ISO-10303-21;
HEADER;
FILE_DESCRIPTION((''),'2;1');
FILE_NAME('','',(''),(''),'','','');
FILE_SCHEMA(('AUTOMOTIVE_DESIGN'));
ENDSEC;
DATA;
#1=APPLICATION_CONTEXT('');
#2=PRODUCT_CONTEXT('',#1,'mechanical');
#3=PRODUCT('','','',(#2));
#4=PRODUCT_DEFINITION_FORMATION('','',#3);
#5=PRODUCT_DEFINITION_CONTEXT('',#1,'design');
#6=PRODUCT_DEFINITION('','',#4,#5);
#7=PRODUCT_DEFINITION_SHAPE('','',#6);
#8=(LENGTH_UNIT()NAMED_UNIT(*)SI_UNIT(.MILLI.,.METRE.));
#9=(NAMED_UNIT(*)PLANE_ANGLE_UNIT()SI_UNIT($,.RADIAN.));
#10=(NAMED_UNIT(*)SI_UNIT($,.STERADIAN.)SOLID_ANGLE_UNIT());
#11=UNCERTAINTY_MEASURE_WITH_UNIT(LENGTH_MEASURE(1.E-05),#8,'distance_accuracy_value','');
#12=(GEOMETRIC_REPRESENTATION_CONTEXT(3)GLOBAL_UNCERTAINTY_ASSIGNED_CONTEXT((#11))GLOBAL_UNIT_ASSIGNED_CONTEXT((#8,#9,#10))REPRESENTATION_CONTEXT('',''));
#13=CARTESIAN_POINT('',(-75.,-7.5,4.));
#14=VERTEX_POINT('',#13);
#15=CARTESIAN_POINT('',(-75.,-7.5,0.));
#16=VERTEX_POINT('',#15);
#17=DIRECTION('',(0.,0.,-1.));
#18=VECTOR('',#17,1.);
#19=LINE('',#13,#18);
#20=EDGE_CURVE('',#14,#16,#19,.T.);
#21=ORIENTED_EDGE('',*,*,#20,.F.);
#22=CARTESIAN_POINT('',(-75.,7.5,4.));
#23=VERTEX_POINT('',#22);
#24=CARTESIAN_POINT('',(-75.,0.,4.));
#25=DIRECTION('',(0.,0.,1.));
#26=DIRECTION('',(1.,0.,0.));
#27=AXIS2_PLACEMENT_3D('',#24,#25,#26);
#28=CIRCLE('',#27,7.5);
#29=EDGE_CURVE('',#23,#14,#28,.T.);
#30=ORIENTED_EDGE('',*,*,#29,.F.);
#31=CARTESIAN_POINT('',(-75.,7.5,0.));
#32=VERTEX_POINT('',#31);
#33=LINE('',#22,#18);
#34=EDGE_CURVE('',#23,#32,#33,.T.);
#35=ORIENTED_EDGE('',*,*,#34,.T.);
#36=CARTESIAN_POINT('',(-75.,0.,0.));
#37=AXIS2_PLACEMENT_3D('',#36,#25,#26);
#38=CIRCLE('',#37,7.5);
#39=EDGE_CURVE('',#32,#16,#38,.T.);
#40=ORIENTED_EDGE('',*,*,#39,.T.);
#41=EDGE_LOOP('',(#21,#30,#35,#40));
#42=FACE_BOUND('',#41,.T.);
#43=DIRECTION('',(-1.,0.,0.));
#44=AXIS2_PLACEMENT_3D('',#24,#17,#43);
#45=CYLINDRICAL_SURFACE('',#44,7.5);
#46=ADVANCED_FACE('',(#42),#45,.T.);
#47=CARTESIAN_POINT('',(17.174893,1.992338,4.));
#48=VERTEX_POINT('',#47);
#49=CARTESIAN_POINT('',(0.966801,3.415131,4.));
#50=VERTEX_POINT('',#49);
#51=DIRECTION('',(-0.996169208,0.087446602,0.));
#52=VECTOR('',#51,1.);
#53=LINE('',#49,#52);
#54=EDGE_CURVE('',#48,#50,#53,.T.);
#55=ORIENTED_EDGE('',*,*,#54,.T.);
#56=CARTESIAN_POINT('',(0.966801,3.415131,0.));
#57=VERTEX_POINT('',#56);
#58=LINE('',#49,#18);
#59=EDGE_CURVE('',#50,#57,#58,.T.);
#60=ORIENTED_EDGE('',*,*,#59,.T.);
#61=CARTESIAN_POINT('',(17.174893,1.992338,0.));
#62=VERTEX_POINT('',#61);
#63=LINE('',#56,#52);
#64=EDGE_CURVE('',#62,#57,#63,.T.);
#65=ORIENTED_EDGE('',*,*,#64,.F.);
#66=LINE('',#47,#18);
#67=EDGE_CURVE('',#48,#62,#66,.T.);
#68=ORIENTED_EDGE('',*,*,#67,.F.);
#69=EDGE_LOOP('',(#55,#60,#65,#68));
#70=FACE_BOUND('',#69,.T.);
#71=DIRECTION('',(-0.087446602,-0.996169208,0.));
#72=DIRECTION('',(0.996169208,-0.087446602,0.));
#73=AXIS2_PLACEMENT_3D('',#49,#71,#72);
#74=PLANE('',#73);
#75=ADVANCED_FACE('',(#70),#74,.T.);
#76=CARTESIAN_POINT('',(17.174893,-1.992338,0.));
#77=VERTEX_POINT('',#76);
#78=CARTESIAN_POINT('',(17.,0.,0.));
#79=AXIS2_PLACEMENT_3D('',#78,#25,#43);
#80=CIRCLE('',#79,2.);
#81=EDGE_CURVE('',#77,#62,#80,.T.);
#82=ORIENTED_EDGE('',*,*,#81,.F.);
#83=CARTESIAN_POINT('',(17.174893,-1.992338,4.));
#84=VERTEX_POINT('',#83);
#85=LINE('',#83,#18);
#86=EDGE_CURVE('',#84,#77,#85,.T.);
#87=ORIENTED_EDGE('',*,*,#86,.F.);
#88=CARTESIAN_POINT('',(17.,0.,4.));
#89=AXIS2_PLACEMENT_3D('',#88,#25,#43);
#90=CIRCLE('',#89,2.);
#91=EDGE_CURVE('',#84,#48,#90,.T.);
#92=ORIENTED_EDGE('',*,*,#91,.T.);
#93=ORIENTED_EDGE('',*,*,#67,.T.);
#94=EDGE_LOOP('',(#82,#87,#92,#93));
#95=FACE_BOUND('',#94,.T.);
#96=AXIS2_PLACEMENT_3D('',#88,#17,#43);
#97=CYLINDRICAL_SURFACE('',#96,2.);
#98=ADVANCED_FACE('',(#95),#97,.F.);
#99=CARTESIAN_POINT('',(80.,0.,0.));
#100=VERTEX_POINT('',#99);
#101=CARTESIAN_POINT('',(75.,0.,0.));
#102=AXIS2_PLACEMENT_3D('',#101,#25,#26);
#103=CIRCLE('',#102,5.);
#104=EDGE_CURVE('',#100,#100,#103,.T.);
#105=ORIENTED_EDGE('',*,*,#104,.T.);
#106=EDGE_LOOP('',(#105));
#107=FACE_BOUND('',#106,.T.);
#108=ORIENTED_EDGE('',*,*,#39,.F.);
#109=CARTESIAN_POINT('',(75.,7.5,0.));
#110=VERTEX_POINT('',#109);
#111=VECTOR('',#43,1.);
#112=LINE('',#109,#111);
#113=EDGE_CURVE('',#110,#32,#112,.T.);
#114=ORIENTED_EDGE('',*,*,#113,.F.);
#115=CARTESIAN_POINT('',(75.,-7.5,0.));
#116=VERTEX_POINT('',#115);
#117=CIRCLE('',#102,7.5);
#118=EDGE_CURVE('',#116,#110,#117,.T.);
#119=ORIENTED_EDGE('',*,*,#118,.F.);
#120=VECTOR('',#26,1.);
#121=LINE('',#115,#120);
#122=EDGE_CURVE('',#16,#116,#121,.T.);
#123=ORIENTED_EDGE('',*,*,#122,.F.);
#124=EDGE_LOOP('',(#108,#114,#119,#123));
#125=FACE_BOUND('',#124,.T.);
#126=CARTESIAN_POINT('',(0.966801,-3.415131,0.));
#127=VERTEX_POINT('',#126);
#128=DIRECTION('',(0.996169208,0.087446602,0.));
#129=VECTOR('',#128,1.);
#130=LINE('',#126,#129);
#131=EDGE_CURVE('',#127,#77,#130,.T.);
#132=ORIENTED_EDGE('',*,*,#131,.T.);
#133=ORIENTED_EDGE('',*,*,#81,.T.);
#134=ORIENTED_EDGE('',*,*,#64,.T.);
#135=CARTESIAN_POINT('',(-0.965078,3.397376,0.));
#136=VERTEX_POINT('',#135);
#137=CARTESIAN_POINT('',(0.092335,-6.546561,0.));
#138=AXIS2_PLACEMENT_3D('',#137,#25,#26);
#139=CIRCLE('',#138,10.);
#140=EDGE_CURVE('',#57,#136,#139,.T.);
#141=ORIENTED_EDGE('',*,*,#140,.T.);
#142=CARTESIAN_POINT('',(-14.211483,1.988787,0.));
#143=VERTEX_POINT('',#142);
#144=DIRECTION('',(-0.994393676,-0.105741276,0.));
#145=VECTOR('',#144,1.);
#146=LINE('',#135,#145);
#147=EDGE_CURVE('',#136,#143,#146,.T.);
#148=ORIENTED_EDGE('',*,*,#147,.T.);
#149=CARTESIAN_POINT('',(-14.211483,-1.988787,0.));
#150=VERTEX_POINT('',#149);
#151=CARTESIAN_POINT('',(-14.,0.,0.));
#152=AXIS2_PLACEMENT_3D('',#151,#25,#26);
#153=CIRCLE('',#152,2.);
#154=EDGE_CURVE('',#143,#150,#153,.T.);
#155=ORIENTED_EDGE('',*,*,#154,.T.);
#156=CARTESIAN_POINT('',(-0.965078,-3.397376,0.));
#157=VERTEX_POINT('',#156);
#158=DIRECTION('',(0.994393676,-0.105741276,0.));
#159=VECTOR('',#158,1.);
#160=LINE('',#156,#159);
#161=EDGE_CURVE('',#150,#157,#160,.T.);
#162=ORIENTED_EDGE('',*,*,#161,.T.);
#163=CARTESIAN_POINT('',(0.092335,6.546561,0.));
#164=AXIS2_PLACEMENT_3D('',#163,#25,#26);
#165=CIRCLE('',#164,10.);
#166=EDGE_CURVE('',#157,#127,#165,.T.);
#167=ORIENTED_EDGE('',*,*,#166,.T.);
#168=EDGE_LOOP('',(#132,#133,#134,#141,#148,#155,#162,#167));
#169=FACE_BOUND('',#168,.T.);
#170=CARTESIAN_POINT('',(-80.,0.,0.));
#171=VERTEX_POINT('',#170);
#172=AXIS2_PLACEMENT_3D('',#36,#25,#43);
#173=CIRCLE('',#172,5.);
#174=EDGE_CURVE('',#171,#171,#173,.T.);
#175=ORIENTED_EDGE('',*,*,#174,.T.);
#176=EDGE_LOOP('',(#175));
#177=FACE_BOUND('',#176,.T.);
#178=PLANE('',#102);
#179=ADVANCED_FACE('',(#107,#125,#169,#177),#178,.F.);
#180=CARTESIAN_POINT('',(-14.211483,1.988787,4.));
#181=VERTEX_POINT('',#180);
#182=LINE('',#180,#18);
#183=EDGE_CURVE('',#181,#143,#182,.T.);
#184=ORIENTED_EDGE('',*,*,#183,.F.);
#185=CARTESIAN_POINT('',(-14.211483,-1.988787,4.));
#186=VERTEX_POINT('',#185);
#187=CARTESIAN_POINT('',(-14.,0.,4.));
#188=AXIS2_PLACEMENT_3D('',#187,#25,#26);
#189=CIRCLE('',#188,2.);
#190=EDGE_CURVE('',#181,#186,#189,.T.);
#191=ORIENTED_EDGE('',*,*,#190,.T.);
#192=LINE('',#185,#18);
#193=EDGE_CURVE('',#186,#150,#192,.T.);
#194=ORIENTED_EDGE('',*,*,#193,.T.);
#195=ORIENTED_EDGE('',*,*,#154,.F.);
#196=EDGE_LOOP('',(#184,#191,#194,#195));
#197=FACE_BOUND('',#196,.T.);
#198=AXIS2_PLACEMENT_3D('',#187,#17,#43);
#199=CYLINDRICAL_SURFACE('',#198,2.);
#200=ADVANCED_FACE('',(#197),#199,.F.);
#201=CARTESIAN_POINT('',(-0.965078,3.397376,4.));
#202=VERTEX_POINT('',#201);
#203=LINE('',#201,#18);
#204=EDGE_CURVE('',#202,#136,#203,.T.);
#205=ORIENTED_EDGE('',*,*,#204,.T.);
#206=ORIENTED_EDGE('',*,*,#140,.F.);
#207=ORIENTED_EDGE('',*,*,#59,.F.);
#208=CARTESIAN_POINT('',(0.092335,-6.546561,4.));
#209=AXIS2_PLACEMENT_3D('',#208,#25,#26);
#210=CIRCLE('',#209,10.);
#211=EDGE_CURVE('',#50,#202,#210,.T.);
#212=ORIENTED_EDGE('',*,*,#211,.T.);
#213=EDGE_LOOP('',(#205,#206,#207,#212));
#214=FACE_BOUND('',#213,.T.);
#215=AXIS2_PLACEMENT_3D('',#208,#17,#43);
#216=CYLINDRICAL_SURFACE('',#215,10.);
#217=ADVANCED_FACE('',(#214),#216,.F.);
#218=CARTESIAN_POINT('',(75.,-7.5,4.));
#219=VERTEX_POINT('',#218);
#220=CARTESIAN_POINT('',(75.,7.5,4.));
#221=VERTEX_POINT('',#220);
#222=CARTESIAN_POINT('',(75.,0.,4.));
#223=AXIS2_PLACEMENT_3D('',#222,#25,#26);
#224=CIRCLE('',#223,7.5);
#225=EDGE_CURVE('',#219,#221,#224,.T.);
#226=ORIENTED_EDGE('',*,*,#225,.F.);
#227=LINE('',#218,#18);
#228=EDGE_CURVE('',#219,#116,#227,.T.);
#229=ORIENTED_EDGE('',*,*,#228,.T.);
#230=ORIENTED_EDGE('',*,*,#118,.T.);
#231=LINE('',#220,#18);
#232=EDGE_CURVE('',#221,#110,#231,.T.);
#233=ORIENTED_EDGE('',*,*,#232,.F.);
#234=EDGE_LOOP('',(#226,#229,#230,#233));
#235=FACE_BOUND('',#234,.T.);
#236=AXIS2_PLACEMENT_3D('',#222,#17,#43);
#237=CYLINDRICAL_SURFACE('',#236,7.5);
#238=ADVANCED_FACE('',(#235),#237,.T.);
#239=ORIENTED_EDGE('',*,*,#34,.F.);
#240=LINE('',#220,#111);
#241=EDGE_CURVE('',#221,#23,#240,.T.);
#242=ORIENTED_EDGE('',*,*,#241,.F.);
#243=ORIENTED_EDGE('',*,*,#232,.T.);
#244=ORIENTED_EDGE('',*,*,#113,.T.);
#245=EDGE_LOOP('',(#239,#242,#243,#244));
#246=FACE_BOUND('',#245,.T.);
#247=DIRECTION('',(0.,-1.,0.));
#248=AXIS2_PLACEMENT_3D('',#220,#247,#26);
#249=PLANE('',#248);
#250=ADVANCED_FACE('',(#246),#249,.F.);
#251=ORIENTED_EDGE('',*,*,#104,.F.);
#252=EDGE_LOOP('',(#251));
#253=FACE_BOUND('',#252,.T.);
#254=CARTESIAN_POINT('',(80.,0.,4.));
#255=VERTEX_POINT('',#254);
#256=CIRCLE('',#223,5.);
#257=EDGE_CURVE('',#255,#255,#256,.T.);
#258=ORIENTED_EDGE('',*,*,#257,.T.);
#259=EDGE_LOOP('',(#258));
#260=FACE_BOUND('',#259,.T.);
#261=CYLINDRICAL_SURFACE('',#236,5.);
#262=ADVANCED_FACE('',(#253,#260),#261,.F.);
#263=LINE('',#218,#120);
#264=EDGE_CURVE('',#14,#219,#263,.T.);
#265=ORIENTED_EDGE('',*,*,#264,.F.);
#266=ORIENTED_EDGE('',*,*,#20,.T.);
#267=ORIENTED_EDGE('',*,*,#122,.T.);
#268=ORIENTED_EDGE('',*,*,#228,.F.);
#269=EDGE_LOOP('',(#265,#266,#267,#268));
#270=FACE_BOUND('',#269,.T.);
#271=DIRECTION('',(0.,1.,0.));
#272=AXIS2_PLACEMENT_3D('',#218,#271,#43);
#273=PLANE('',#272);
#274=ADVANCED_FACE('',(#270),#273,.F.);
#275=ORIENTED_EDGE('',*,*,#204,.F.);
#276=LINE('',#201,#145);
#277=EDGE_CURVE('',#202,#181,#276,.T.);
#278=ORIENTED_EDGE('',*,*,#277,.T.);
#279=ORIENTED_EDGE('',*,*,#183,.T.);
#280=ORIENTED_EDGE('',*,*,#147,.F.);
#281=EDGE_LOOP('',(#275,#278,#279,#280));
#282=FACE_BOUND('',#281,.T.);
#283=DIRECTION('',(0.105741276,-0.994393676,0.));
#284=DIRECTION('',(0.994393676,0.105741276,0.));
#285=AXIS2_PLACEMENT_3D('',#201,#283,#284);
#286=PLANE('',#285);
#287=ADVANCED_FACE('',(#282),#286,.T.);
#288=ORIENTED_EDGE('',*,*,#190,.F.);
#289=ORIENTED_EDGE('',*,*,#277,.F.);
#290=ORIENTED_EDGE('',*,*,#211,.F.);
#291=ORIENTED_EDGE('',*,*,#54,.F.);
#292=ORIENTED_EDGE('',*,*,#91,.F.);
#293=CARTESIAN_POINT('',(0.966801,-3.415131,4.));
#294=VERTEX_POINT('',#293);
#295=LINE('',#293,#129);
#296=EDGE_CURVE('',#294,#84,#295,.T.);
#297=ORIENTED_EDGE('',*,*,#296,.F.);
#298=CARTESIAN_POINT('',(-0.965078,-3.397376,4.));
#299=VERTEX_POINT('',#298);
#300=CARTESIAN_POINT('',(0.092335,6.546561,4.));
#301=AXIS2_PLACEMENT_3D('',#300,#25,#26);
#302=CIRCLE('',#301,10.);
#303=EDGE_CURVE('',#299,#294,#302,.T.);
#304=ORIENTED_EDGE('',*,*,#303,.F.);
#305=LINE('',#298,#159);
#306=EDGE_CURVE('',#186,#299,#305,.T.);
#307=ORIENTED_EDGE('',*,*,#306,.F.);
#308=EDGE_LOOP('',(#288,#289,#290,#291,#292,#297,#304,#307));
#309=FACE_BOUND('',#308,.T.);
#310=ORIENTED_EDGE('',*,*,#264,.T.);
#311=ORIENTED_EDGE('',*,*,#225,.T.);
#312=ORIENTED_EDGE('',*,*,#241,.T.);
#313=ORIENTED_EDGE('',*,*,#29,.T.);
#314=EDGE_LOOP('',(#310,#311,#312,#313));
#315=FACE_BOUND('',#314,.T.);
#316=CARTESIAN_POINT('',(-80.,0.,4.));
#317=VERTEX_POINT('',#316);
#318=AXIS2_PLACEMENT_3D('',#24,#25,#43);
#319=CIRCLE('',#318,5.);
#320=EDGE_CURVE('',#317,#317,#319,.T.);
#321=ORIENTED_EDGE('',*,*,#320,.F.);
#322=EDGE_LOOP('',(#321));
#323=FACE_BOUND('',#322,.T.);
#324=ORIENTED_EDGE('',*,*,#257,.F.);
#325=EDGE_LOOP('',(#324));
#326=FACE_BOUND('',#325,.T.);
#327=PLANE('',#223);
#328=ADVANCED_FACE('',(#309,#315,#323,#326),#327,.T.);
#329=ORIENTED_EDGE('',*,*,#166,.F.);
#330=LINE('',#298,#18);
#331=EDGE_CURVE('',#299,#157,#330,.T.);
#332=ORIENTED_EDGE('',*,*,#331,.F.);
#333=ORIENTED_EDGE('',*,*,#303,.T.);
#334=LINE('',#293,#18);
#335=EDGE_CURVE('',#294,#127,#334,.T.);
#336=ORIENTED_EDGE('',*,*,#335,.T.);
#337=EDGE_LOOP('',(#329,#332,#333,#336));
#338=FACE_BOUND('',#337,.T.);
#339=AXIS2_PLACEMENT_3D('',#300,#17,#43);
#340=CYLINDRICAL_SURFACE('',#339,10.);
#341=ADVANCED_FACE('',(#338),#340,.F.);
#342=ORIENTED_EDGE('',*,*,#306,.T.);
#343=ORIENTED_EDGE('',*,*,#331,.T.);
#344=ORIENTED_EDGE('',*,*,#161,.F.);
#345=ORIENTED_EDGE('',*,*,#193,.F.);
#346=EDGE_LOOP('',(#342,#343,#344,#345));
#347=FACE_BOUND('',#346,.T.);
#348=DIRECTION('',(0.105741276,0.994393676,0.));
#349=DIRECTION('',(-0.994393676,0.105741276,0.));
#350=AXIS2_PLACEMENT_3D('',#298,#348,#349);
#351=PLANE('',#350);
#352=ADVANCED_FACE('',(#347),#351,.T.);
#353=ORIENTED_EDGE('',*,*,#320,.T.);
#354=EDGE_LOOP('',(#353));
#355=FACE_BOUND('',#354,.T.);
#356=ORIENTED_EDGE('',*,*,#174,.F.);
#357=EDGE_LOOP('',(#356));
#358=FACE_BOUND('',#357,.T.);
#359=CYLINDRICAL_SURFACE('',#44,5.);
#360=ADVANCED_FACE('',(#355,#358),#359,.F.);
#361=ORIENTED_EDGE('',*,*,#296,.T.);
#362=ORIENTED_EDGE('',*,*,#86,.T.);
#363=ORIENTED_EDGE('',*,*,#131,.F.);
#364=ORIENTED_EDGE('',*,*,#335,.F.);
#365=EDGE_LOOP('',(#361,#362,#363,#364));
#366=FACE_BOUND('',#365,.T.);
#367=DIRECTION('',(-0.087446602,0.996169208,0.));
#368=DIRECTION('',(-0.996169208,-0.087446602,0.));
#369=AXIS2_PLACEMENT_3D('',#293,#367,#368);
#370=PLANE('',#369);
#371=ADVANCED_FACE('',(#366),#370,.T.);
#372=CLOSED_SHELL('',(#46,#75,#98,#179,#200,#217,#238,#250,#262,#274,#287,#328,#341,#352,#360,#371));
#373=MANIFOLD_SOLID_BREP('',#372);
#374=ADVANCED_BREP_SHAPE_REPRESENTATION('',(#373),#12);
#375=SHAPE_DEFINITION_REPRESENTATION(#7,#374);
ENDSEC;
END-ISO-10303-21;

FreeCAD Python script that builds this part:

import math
import FreeCAD as App
import Part
import Sketcher

V = App.Vector

doc = App.newDocument("Part")
body = doc.addObject("PartDesign::Body", "Body")

# Sketch on XY plane
sketch1 = body.newObject("Sketcher::SketchObject", "Sketch")
sketch1.AttachmentSupport = (doc.getObject("XY_Plane"), [""])
sketch1.MapMode = "FlatFace"
sketch1.addGeometry(Part.LineSegment(V(-75, -7.5, 0), V(75, -7.5, 0)), False)
sketch1.addGeometry(Part.ArcOfCircle(Part.Circle(V(75, 0, 0), V(0, 0, 1), 7.5), math.radians(-90), math.radians(90)), False)
sketch1.addGeometry(Part.LineSegment(V(75, 7.5, 0), V(-75, 7.5, 0)), False)
sketch1.addGeometry(Part.ArcOfCircle(Part.Circle(V(-75, 0, 0), V(0, 0, 1), 7.5), math.radians(90), math.radians(270)), False)
sketch1.addGeometry(Part.Circle(V(75, 0, 0), V(0, 0, 1), 5), False)
sketch1.addGeometry(Part.ArcOfCircle(Part.Circle(V(0.1, -6.5, 0), V(0, 0, 1), 10), math.radians(84.98), math.radians(96.07)), False)
sketch1.addGeometry(Part.LineSegment(V(1, 3.4, 0), V(17.2, 2, 0)), False)
sketch1.addGeometry(Part.ArcOfCircle(Part.Circle(V(17, 0, 0), V(0, 0, 1), 2), math.radians(-85), math.radians(85)), False)
sketch1.addGeometry(Part.LineSegment(V(17.2, -2, 0), V(1, -3.4, 0)), False)
sketch1.addGeometry(Part.ArcOfCircle(Part.Circle(V(0.1, 6.5, 0), V(0, 0, 1), 10), math.radians(-96.07), math.radians(-84.98)), False)
sketch1.addGeometry(Part.LineSegment(V(-1, -3.4, 0), V(-14.2, -2, 0)), False)
sketch1.addGeometry(Part.ArcOfCircle(Part.Circle(V(-14, 0, 0), V(0, 0, 1), 2), math.radians(96), math.radians(264)), False)
sketch1.addGeometry(Part.LineSegment(V(-14.2, 2, 0), V(-1, 3.4, 0)), False)
sketch1.addGeometry(Part.Circle(V(-75, 0, 0), V(0, 0, 1), 5), False)
sketch1.addConstraint(Sketcher.Constraint("Tangent", 0, 2, 1, 1))
sketch1.addConstraint(Sketcher.Constraint("Tangent", 1, 2, 2, 1))
sketch1.addConstraint(Sketcher.Constraint("Tangent", 2, 2, 3, 1))
sketch1.addConstraint(Sketcher.Constraint("Tangent", 3, 2, 0, 1))
sketch1.addConstraint(Sketcher.Constraint("Tangent", 5, 1, 6, 1))
sketch1.addConstraint(Sketcher.Constraint("Tangent", 6, 2, 7, 2))
sketch1.addConstraint(Sketcher.Constraint("Tangent", 7, 1, 8, 1))
sketch1.addConstraint(Sketcher.Constraint("Tangent", 8, 2, 9, 2))
sketch1.addConstraint(Sketcher.Constraint("Tangent", 9, 1, 10, 1))
sketch1.addConstraint(Sketcher.Constraint("Tangent", 10, 2, 11, 2))
sketch1.addConstraint(Sketcher.Constraint("Tangent", 11, 1, 12, 1))
sketch1.addConstraint(Sketcher.Constraint("Tangent", 12, 2, 5, 2))
sketch1.addConstraint(Sketcher.Constraint("Horizontal", 0))
sketch1.addConstraint(Sketcher.Constraint("Horizontal", 2))
sketch1.addConstraint(Sketcher.Constraint("Coincident", 4, 3, 1, 3))
sketch1.addConstraint(Sketcher.Constraint("Coincident", 13, 3, 3, 3))
sketch1.addConstraint(Sketcher.Constraint("Equal", 5, 9))
sketch1.addConstraint(Sketcher.Constraint("Equal", 7, 11))
sketch1.addConstraint(Sketcher.Constraint("Equal", 4, 13))
sketch1.addConstraint(Sketcher.Constraint("Symmetric", 1, 3, 3, 3, -1, 1))
sketch1.addConstraint(Sketcher.Constraint("Symmetric", 5, 3, 9, 3, -1))
sketch1.addConstraint(Sketcher.Constraint("PointOnObject", 7, 3, -1))
sketch1.addConstraint(Sketcher.Constraint("PointOnObject", 11, 3, -1))
sketch1.addConstraint(Sketcher.Constraint("Diameter", 4, 10.0))
sketch1.addConstraint(Sketcher.Constraint("Radius", 5, 10.0))
sketch1.addConstraint(Sketcher.Constraint("Radius", 7, 2.0))
sketch1.addConstraint(Sketcher.Constraint("Radius", 1, 7.5))
sketch1.addConstraint(Sketcher.Constraint("DistanceX", 0, 1, 0, 2, 150.0))
sketch1.addConstraint(Sketcher.Constraint("DistanceX", -1, 1, 7, 3, 17.0))
sketch1.addConstraint(Sketcher.Constraint("DistanceX", 11, 3, -1, 1, 14.0))
sketch1.addConstraint(Sketcher.Constraint("DistanceX", -1, 1, 5, 1, 0.966801))
sketch1.addConstraint(Sketcher.Constraint("DistanceY", 5, 3, 6, 2, 8.538899))
pad1 = body.newObject("PartDesign::Pad", "Pad")
pad1.Profile = sketch1
pad1.Length = 4

doc.recompute()
